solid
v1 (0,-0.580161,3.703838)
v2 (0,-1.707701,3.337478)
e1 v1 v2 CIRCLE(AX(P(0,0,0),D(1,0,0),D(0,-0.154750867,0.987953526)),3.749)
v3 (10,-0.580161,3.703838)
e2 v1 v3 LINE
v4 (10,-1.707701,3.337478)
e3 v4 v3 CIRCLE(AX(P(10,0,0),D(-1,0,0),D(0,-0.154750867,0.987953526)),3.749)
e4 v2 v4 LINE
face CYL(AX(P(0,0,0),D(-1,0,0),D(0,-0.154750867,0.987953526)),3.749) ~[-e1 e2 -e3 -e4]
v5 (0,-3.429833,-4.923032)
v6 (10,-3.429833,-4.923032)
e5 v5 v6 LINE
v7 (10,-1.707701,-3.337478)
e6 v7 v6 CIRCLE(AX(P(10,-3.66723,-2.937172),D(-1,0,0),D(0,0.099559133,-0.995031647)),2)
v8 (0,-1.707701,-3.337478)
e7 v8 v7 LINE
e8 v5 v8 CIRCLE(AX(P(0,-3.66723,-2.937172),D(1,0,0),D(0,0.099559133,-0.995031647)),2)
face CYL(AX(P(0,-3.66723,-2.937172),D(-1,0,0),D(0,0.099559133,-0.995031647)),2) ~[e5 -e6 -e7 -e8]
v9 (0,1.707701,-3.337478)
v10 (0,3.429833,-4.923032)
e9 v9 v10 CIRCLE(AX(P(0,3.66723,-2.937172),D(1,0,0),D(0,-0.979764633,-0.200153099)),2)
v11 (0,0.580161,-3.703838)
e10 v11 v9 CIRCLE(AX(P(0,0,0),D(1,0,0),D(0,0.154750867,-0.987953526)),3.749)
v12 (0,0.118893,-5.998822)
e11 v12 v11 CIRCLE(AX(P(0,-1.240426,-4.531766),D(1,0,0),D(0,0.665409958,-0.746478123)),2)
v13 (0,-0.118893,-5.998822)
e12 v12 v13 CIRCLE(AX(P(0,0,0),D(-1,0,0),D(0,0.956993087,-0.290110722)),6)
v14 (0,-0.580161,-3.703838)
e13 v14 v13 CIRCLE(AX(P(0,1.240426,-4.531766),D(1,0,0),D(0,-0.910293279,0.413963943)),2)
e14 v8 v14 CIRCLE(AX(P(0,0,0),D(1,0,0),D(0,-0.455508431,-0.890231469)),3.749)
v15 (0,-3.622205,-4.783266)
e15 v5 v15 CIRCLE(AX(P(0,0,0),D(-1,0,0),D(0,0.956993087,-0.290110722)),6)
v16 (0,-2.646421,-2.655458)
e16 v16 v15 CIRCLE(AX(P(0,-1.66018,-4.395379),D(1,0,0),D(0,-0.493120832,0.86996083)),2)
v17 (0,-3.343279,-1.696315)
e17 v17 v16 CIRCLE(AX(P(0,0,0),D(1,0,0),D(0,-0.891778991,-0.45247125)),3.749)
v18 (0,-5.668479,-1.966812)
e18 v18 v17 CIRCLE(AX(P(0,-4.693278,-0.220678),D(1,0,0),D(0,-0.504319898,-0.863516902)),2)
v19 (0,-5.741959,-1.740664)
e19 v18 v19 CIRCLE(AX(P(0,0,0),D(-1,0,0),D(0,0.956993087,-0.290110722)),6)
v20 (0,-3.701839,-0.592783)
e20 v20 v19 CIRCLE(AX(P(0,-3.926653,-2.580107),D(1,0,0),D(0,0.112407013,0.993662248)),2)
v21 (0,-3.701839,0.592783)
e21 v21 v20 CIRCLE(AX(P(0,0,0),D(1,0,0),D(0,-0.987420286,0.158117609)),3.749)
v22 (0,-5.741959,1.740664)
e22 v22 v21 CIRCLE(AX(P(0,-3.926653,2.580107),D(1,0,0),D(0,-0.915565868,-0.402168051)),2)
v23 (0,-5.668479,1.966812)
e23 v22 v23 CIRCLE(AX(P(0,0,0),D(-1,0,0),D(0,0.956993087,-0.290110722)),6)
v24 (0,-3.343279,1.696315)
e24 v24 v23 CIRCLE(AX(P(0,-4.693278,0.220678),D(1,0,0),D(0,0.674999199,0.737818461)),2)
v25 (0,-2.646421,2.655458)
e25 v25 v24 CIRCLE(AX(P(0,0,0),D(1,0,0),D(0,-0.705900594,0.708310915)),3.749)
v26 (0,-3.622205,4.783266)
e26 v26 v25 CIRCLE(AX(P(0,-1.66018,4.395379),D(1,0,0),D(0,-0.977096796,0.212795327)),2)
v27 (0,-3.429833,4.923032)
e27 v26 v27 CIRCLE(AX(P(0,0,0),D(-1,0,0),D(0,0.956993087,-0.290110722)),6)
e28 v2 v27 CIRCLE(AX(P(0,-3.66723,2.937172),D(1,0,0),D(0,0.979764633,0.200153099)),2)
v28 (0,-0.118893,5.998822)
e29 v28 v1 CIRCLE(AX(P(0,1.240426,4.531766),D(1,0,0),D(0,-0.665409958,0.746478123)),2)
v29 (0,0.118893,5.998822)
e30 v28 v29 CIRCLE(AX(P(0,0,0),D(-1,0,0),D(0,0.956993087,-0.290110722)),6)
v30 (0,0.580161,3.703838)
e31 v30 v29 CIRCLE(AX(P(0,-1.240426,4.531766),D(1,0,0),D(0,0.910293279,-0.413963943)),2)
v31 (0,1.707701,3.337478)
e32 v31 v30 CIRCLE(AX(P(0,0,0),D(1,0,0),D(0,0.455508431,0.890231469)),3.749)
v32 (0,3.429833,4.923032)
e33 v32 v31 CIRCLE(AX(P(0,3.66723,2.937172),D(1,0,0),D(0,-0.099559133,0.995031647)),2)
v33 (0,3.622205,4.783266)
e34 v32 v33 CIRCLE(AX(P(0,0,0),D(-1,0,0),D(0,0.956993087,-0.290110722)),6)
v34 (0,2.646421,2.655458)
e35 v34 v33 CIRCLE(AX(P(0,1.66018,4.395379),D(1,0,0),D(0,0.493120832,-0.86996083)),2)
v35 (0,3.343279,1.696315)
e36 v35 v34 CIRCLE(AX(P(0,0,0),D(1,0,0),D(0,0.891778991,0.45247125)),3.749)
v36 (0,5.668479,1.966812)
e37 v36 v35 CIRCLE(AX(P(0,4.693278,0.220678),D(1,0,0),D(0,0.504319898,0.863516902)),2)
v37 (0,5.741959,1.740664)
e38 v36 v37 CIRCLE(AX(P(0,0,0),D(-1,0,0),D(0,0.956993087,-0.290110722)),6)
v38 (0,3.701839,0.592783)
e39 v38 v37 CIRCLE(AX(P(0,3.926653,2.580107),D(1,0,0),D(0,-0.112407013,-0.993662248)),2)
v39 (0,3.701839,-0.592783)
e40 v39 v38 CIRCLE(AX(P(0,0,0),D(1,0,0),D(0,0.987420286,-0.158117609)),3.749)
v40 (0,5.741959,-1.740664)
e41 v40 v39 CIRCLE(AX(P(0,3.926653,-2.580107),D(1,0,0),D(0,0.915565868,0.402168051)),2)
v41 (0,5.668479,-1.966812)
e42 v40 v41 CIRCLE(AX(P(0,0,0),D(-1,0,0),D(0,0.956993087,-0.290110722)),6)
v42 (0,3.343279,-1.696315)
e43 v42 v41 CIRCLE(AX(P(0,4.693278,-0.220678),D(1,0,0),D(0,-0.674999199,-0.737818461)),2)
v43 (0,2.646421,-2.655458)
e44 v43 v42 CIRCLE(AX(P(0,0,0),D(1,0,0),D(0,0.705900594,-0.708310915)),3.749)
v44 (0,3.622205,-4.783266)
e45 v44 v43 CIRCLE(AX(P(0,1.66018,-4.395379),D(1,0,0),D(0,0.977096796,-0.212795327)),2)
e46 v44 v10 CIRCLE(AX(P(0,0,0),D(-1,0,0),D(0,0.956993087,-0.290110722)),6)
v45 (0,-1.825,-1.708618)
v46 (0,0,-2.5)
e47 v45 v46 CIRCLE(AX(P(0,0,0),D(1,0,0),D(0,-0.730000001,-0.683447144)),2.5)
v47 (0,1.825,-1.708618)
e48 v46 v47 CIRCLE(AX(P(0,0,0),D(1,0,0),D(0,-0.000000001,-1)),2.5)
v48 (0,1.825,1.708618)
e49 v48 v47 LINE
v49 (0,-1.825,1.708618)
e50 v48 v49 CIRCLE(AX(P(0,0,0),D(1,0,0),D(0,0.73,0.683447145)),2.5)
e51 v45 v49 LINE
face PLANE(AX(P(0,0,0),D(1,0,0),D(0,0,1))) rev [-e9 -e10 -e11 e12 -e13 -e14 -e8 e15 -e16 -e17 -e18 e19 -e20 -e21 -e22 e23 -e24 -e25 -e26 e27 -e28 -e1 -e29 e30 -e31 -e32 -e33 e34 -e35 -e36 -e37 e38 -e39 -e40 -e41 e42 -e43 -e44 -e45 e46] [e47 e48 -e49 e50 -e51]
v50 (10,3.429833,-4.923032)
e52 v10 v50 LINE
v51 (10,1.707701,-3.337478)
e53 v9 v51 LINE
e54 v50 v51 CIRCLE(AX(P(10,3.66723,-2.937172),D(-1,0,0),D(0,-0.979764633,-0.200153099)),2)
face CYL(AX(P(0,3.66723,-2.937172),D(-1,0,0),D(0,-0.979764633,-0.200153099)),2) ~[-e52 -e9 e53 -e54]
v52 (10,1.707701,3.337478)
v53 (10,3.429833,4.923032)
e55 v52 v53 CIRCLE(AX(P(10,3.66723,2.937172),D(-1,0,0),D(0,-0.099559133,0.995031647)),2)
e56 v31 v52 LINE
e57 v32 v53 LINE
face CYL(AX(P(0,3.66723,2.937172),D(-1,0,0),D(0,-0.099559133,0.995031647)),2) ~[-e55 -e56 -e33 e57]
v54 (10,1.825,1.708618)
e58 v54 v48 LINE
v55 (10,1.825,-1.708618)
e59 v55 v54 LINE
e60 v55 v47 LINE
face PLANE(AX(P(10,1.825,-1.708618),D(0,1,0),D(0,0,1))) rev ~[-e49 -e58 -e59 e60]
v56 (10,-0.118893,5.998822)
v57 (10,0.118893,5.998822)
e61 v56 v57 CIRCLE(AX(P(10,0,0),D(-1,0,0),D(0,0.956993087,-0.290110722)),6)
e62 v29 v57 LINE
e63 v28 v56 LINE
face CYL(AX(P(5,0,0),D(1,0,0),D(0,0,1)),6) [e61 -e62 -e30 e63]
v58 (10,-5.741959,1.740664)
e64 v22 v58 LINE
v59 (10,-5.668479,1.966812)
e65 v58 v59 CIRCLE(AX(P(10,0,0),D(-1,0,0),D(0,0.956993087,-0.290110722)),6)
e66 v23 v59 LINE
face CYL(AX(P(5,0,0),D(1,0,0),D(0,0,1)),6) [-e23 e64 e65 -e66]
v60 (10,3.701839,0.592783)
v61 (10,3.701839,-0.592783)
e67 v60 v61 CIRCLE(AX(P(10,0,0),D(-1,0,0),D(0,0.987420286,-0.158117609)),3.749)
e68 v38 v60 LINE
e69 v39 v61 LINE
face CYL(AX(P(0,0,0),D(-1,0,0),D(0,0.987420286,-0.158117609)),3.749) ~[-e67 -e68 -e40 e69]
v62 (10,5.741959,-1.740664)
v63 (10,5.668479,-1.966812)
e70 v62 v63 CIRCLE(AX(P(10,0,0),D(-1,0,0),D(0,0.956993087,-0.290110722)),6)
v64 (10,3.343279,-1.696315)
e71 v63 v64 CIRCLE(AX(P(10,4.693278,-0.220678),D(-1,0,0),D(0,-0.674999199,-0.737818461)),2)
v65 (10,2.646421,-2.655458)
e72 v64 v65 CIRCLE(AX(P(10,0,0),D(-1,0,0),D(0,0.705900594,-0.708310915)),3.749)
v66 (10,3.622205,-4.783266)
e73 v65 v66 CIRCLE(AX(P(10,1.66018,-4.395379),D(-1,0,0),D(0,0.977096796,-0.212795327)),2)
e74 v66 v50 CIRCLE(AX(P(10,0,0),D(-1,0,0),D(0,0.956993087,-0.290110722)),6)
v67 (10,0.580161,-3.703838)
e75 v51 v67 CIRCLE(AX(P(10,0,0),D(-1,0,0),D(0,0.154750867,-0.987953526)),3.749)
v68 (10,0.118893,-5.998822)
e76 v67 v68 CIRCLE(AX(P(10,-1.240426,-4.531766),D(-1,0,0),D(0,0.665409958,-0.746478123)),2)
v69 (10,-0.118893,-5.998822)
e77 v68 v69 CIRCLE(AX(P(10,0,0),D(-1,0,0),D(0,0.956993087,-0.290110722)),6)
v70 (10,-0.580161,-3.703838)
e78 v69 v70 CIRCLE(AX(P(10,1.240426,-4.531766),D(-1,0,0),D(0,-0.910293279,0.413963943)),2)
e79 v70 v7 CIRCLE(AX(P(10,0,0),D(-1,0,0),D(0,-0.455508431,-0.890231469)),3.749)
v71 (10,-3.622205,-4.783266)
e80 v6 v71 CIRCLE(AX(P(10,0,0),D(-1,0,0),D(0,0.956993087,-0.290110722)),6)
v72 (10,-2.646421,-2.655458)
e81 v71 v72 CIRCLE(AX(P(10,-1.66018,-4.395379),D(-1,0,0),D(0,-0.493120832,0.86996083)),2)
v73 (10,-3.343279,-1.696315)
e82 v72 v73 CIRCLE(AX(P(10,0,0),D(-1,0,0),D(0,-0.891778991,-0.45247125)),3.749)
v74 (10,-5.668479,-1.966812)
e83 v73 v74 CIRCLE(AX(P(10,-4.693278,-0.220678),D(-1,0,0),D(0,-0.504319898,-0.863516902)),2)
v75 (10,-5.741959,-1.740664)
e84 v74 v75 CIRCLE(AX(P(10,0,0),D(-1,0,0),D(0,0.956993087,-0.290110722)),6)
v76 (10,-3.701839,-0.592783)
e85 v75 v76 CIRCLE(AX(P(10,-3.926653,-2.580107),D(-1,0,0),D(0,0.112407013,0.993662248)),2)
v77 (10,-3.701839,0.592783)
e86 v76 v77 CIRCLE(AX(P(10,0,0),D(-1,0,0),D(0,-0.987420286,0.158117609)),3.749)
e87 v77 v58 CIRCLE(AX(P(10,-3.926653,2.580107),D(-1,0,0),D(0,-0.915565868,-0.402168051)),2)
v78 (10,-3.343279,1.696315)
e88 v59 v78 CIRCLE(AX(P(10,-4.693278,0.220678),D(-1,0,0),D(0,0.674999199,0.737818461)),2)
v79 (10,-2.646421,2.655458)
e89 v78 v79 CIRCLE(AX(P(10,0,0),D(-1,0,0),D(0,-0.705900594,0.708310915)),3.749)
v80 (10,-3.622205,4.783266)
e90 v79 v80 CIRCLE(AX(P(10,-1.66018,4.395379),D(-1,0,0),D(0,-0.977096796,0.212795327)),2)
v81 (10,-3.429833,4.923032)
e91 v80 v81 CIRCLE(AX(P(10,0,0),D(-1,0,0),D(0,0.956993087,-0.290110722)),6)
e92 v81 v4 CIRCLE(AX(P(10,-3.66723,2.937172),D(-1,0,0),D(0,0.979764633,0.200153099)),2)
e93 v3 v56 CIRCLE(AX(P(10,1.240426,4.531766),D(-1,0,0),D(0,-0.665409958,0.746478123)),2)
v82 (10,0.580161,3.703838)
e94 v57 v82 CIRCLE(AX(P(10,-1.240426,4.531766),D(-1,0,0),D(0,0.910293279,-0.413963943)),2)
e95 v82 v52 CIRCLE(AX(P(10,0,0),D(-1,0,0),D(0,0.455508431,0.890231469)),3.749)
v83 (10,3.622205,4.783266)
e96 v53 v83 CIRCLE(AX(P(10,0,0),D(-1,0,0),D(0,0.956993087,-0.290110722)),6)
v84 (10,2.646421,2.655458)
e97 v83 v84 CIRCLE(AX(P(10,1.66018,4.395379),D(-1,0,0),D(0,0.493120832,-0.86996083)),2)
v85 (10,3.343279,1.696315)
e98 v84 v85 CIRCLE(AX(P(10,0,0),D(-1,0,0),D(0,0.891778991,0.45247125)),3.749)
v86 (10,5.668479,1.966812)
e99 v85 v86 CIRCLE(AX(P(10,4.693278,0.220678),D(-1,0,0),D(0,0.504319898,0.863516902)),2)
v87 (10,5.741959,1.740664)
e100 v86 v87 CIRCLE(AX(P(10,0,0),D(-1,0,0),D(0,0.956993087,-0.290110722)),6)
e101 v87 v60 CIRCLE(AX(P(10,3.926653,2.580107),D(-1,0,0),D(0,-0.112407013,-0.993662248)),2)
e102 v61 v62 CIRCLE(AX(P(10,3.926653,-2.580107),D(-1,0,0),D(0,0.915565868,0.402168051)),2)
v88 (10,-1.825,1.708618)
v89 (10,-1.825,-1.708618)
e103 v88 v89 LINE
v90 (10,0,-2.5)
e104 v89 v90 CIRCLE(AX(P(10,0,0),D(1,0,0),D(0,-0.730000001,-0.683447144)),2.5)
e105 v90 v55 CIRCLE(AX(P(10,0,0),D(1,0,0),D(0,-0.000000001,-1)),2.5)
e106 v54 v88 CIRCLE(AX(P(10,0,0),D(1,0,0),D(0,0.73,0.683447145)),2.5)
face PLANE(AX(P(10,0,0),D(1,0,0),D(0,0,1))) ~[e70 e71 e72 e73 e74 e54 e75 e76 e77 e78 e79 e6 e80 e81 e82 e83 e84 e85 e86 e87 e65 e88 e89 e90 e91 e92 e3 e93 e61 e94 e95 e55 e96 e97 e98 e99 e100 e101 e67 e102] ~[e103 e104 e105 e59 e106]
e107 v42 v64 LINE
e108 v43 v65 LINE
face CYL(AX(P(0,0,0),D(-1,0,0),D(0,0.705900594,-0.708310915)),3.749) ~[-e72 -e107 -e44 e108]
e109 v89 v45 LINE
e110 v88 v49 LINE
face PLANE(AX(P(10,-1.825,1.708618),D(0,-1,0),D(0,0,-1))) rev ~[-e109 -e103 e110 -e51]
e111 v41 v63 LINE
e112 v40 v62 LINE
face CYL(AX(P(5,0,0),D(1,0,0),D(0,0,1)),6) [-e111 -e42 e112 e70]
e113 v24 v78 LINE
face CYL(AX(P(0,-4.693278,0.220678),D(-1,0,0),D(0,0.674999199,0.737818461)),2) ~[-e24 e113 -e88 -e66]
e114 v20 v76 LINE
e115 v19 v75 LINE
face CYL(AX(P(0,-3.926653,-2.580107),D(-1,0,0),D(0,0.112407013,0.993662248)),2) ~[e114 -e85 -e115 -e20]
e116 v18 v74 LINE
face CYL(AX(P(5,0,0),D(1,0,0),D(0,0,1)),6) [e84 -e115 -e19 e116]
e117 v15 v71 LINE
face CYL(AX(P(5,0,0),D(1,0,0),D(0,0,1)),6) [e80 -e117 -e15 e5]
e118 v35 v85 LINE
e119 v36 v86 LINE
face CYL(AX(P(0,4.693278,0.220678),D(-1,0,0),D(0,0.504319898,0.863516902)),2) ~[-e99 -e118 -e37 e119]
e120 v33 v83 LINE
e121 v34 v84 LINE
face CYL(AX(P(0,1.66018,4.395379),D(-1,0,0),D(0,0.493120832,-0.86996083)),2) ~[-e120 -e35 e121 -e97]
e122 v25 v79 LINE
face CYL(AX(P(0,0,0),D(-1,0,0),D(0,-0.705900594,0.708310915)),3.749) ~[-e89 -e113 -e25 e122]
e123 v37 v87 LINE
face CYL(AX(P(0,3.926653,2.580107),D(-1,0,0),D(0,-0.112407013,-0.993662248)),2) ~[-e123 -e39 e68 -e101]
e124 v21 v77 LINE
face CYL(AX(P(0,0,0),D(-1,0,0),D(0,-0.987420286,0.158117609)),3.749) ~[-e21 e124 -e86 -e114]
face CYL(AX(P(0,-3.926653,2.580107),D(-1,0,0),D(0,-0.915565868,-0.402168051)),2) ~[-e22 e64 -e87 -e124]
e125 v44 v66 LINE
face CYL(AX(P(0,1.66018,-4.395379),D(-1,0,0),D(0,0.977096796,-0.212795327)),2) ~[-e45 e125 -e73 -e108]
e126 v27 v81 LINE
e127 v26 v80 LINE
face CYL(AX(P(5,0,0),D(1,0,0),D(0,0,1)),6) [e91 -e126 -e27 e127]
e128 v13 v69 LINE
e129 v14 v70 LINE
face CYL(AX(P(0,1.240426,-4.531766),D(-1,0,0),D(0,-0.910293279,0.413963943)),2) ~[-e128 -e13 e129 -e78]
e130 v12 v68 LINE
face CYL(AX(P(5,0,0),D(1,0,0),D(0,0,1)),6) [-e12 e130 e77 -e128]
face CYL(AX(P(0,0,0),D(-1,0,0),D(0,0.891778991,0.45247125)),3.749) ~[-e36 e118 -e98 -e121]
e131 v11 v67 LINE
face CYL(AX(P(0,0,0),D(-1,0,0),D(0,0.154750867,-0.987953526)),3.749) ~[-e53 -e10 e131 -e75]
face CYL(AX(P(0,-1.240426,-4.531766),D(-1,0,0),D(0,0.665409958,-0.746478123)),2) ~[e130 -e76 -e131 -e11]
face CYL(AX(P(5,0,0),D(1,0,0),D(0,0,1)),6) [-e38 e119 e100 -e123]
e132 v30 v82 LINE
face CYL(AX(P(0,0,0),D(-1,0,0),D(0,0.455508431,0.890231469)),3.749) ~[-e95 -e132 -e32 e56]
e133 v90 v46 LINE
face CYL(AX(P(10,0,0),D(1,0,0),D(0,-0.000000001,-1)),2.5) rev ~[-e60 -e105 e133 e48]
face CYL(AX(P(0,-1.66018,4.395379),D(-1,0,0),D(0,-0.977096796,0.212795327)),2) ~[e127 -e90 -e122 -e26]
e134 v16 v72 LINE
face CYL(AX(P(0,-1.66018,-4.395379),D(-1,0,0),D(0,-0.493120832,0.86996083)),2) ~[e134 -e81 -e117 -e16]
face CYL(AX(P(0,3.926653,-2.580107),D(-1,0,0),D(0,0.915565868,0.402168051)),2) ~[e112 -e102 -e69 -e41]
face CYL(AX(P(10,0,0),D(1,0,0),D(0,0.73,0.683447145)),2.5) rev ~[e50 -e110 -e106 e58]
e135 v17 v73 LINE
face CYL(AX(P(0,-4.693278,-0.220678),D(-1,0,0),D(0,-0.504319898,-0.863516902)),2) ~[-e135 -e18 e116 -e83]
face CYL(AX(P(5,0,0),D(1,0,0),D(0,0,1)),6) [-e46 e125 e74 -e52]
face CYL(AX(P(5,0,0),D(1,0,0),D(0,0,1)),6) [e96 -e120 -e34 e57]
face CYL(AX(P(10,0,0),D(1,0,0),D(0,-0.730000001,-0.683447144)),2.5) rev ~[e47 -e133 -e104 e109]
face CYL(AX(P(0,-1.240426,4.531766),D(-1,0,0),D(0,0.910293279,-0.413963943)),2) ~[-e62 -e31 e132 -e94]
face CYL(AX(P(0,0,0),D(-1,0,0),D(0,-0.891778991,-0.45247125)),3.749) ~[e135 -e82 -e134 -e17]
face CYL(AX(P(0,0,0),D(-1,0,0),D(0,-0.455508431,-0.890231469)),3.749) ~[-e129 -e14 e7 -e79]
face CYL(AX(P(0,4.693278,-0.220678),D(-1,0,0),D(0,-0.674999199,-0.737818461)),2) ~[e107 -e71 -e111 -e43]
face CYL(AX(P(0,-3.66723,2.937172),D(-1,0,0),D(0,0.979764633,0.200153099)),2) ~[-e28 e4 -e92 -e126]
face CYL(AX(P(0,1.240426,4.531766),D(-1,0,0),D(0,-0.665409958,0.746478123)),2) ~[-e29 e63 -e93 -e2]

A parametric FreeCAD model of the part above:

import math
import FreeCAD as App
import Part
import Sketcher
from FreeCAD import Vector

doc = App.newDocument("Part")
body = doc.addObject("PartDesign::Body", "Body")

sketch1 = doc.addObject("Sketcher::SketchObject", "Sketch")
body.addObject(sketch1)
sketch1.AttachmentSupport = (doc.XZ_Plane, [""])
sketch1.MapMode = "FlatFace"
sketch1.addGeometry([
    Part.LineSegment(Vector(0, -6, 0), Vector(0, 0, 0)),
    Part.LineSegment(Vector(0, 0, 0), Vector(10, 0, 0)),
    Part.LineSegment(Vector(10, 0, 0), Vector(10, -6, 0)),
    Part.LineSegment(Vector(10, -6, 0), Vector(0, -6, 0)),
], False)
sketch1.addConstraint([
    Sketcher.Constraint("Coincident", 0, 2, 1, 1),
    Sketcher.Constraint("Coincident", 1, 2, 2, 1),
    Sketcher.Constraint("Coincident", 2, 2, 3, 1),
    Sketcher.Constraint("Coincident", 3, 2, 0, 1),
    Sketcher.Constraint("Vertical", 0),
    Sketcher.Constraint("Horizontal", 1),
    Sketcher.Constraint("Vertical", 2),
    Sketcher.Constraint("Horizontal", 3),
    Sketcher.Constraint("Coincident", 0, 2, -1, 1),
    Sketcher.Constraint("DistanceX", 1, 1, 1, 2, 10.0),
    Sketcher.Constraint("DistanceY", 0, 1, 0, 2, 6.0),
])
revolution = doc.addObject("PartDesign::Revolution", "Revolution")
body.addObject(revolution)
revolution.Profile = sketch1
revolution.ReferenceAxis = (sketch1, ["H_Axis"])
revolution.Angle = 360

sketch2 = doc.addObject("Sketcher::SketchObject", "Sketch001")
body.addObject(sketch2)
sketch2.AttachmentSupport = (doc.YZ_Plane, [""])
sketch2.MapMode = "FlatFace"
sketch2.addGeometry([
    Part.ArcOfCircle(Part.Circle(Vector(0, 0, 0), Vector(0, 0, 1), 3.749), math.radians(-9.097652), math.radians(9.097652)),
    Part.ArcOfCircle(Part.Circle(Vector(3.926653, -2.580107, 0), Vector(0, 0, 1), 2), math.radians(23.713784), math.radians(96.454088)),
    Part.ArcOfCircle(Part.Circle(Vector(0, 0, 0), Vector(0, 0, 1), 6.0254), math.radians(-17.140404), math.radians(17.140404)),
    Part.ArcOfCircle(Part.Circle(Vector(3.926653, 2.580107, 0), Vector(0, 0, 1), 2), math.radians(-96.454088), math.radians(-23.713784)),
], False)
sketch2.addConstraint([
    Sketcher.Constraint("Coincident", 0, 1, 1, 2),
    Sketcher.Constraint("Coincident", 1, 1, 2, 1),
    Sketcher.Constraint("Coincident", 2, 2, 3, 2),
    Sketcher.Constraint("Coincident", 3, 1, 0, 2),
    Sketcher.Constraint("Coincident", 0, 3, -1, 1),
    Sketcher.Constraint("Coincident", 2, 3, -1, 1),
    Sketcher.Constraint("Equal", 1, 3),
    Sketcher.Constraint("Symmetric", 1, 3, 3, 3, -1),
    Sketcher.Constraint("Radius", 1, 2.0),
    Sketcher.Constraint("Radius", 0, 3.749),
    Sketcher.Constraint("Radius", 2, 6.0254),
    Sketcher.Constraint("DistanceX", -1, 1, 0, 1, 3.701839),
    Sketcher.Constraint("DistanceY", 1, 1, -1, 1, 1.775771),
])
pocket1 = doc.addObject("PartDesign::Pocket", "Pocket")
body.addObject(pocket1)
pocket1.Profile = sketch2
pocket1.Type = "ThroughAll"
pocket1.Reversed = True
doc.recompute()

polarpattern = doc.addObject("PartDesign::PolarPattern", "PolarPattern")
body.addObject(polarpattern)
polarpattern.Originals = [pocket1]
polarpattern.Axis = (doc.X_Axis, [""])
polarpattern.Angle = 360
polarpattern.Occurrences = 10
body.Tip = polarpattern

sketch3 = doc.addObject("Sketcher::SketchObject", "Sketch002")
body.addObject(sketch3)
sketch3.AttachmentSupport = (doc.YZ_Plane, [""])
sketch3.MapMode = "FlatFace"
sketch3.addGeometry(Part.Circle(Vector(0, 0, 0), Vector(0, 0, 1), 0.4), False)
sketch3.addConstraint([
    Sketcher.Constraint("Coincident", 0, 3, -1, 1),
    Sketcher.Constraint("Diameter", 0, 0.8),
])
pocket2 = doc.addObject("PartDesign::Pocket", "Pocket001")
body.addObject(pocket2)
pocket2.Profile = sketch3
pocket2.Length = 100.000102
pocket2.Midplane = True

sketch4 = doc.addObject("Sketcher::SketchObject", "Sketch003")
body.addObject(sketch4)
sketch4.AttachmentSupport = (doc.YZ_Plane, [""])
sketch4.MapMode = "FlatFace"
sketch4.AttachmentOffset = App.Placement(Vector(0, 0, 10), App.Rotation())
sketch4.addGeometry([
    Part.ArcOfCircle(Part.Circle(Vector(0, 0, 0), Vector(0, 0, 1), 2.5), math.radians(43.113606), math.radians(136.886394)),
    Part.LineSegment(Vector(-1.825, 1.708618, 0), Vector(-1.825, -1.708618, 0)),
    Part.ArcOfCircle(Part.Circle(Vector(0, 0, 0), Vector(0, 0, 1), 2.5), math.radians(-136.886394), math.radians(-90)),
    Part.ArcOfCircle(Part.Circle(Vector(0, 0, 0), Vector(0, 0, 1), 2.5), math.radians(-90), math.radians(-43.113606)),
    Part.LineSegment(Vector(1.825, -1.708618, 0), Vector(1.825, 1.708618, 0)),
    Part.Circle(Vector(0, 0, 0), Vector(0, 0, 1), 0.4),
], False)
sketch4.addConstraint([
    Sketcher.Constraint("Coincident", 0, 2, 1, 1),
    Sketcher.Constraint("Coincident", 1, 2, 2, 1),
    Sketcher.Constraint("Tangent", 2, 2, 3, 1),
    Sketcher.Constraint("Coincident", 3, 2, 4, 1),
    Sketcher.Constraint("Coincident", 4, 2, 0, 1),
    Sketcher.Constraint("Vertical", 1),
    Sketcher.Constraint("Vertical", 4),
    Sketcher.Constraint("Coincident", 0, 3, -1, 1),
    Sketcher.Constraint("Coincident", 2, 3, -1, 1),
    Sketcher.Constraint("Coincident", 5, 3, -1, 1),
    Sketcher.Constraint("Equal", 0, 2),
    Sketcher.Constraint("Equal", 2, 3),
    Sketcher.Constraint("PointOnObject", 2, 2, -2),
    Sketcher.Constraint("Horizontal", 1, 2, 3, 2),
    Sketcher.Constraint("Diameter", 5, 0.8),
    Sketcher.Constraint("Radius", 0, 2.5),
    Sketcher.Constraint("DistanceX", 0, 2, -1, 1, 1.825),
])
pocket3 = doc.addObject("PartDesign::Pocket", "Pocket002")
body.addObject(pocket3)
pocket3.Profile = sketch4
pocket3.Type = "ThroughAll"

doc.recompute()
